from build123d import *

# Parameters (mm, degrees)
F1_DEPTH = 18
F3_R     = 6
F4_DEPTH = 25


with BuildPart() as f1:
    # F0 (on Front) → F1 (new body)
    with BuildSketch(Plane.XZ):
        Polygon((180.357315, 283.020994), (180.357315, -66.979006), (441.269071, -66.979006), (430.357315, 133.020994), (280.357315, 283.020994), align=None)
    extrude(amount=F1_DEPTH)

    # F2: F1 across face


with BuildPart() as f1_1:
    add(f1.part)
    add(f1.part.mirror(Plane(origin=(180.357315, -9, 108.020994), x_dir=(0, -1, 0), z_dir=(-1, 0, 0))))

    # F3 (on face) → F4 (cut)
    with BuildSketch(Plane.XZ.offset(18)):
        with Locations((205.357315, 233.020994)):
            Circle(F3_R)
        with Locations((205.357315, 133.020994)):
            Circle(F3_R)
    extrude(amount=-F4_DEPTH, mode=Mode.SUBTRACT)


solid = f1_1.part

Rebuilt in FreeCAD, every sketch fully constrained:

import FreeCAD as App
import Part
import Sketcher
from FreeCAD import Vector
Q = App.Units.Quantity

doc = App.newDocument("Part")
body = doc.addObject("PartDesign::Body", "Body")

sketch1 = body.newObject("Sketcher::SketchObject", "Sketch")
sketch1.AttachmentSupport = (doc.getObject("XZ_Plane"), [""])
sketch1.MapMode = "FlatFace"
sketch1.addGeometry([
    Part.LineSegment(Vector(180, 283, 0), Vector(180, -67, 0)),
    Part.LineSegment(Vector(180, -67, 0), Vector(441, -67, 0)),
    Part.LineSegment(Vector(441, -67, 0), Vector(430, 133, 0)),
    Part.LineSegment(Vector(430, 133, 0), Vector(280, 283, 0)),
    Part.LineSegment(Vector(280, 283, 0), Vector(180, 283, 0)),
], False)
sketch1.addConstraint([
    Sketcher.Constraint("Coincident", 0, 2, 1, 1),
    Sketcher.Constraint("Coincident", 1, 2, 2, 1),
    Sketcher.Constraint("Coincident", 2, 2, 3, 1),
    Sketcher.Constraint("Coincident", 3, 2, 4, 1),
    Sketcher.Constraint("Coincident", 4, 2, 0, 1),
    Sketcher.Constraint("Vertical", 0),
    Sketcher.Constraint("Horizontal", 1),
    Sketcher.Constraint("Horizontal", 4),
    Sketcher.Constraint("DistanceX", 4, 2, 4, 1, 100.0),
    Sketcher.Constraint("DistanceY", 0, 2, 0, 1, 350.0),
    Sketcher.Constraint("Angle", 3, Q("135 deg")),
    Sketcher.Constraint("DistanceY", 1, 2, 2, 2, 200.0),
    Sketcher.Constraint("DistanceX", 1, 1, 1, 2, 260.911756),
    Sketcher.Constraint("DistanceX", -1, 1, 1, 2, 441.269071),
    Sketcher.Constraint("DistanceY", 0, 2, -1, 1, 66.979006),
])
pad1 = body.newObject("PartDesign::Pad", "Pad")
pad1.Profile = sketch1
pad1.Length = 18
body2 = doc.addObject("PartDesign::Body", "Body001")
doc.recompute()

body2.BaseFeature = body
doc.recompute()

mirroring = doc.addObject("Part::Mirroring", "Mirroring")
mirroring.Source = body
mirroring.Base = Vector(180.357315, -9, 108.020994)
mirroring.Normal = Vector(-1, 0, 0)
body3 = doc.addObject("PartDesign::Body", "Body002")
body3.BaseFeature = mirroring
boolean = body2.newObject("PartDesign::Boolean", "Boolean")
boolean.Type = "Fuse"
boolean.addObjects([body3])
doc.recompute()

sketch2 = body2.newObject("Sketcher::SketchObject", "Sketch001")
sketch2.AttachmentSupport = (doc.getObject("XZ_Plane001"), [""])
sketch2.MapMode = "FlatFace"
sketch2.AttachmentOffset = App.Placement(Vector(0, 0, 18), App.Rotation())
sketch2.addGeometry([
    Part.Circle(Vector(205, 233, 0), Vector(0, 0, 1), 6),
    Part.Circle(Vector(205, 133, 0), Vector(0, 0, 1), 6),
], False)
sketch2.addConstraint([
    Sketcher.Constraint("Equal", 0, 1),
    Sketcher.Constraint("Vertical", 0, 3, 1, 3),
    Sketcher.Constraint("Diameter", 0, 12.0),
    Sketcher.Constraint("DistanceY", 1, 3, 0, 3, 100.0),
    Sketcher.Constraint("DistanceX", -1, 1, 0, 3, 205.357315),
    Sketcher.Constraint("DistanceY", -1, 1, 0, 3, 233.020994),
])
pocket1 = body2.newObject("PartDesign::Pocket", "Pocket")
pocket1.Profile = sketch2
pocket1.Length = 25
mirroring.Visibility = False

doc.recompute()
